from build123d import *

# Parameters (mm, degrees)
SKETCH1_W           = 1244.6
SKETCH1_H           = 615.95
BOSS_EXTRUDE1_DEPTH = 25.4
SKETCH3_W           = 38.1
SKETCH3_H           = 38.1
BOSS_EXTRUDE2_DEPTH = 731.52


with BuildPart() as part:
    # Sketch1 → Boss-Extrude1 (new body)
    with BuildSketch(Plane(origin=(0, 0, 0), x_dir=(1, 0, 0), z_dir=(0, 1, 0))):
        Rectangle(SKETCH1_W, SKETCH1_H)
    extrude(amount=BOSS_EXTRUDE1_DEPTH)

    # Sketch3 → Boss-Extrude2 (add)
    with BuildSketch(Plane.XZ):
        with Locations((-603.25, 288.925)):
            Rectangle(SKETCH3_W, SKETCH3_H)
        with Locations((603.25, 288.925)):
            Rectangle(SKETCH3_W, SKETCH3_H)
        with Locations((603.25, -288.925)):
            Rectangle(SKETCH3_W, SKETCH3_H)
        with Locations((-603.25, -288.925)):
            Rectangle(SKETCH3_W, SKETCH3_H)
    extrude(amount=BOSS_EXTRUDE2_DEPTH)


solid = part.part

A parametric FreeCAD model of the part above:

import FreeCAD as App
import Part
import Sketcher

V = App.Vector
Q = App.Units.Quantity

doc = App.newDocument("Part")
body = doc.addObject("PartDesign::Body", "Body")

sketch1 = body.newObject("Sketcher::SketchObject", "Sketch")
sketch1.AttachmentSupport = (doc.getObject("XZ_Plane"), [""])
sketch1.MapMode = "FlatFace"
sketch1.addGeometry(Part.LineSegment(V(-622.3, -307.975, 0), V(-622.3, 307.975, 0)), False)
sketch1.addGeometry(Part.LineSegment(V(-622.3, 307.975, 0), V(622.3, 307.975, 0)), False)
sketch1.addGeometry(Part.LineSegment(V(622.3, 307.975, 0), V(622.3, -307.975, 0)), False)
sketch1.addGeometry(Part.LineSegment(V(622.3, -307.975, 0), V(-622.3, -307.975, 0)), False)
sketch1.addConstraint(Sketcher.Constraint("Coincident", 0, 2, 1, 1))
sketch1.addConstraint(Sketcher.Constraint("Coincident", 1, 2, 2, 1))
sketch1.addConstraint(Sketcher.Constraint("Coincident", 2, 2, 3, 1))
sketch1.addConstraint(Sketcher.Constraint("Coincident", 3, 2, 0, 1))
sketch1.addConstraint(Sketcher.Constraint("Vertical", 0))
sketch1.addConstraint(Sketcher.Constraint("Horizontal", 1))
sketch1.addConstraint(Sketcher.Constraint("Vertical", 2))
sketch1.addConstraint(Sketcher.Constraint("Horizontal", 3))
sketch1.addConstraint(Sketcher.Constraint("Symmetric", 0, 2, 2, 2, -1, 1))
sketch1.addConstraint(Sketcher.Constraint("DistanceX", 1, 1, 1, 2, Q("49 in")))
sketch1.addConstraint(Sketcher.Constraint("DistanceY", 0, 1, 0, 2, Q("24.25 in")))
pad1 = body.newObject("PartDesign::Pad", "Pad")
pad1.Profile = sketch1
pad1.Length = Q("1 in")
pad1.Reversed = True

sketch2 = body.newObject("Sketcher::SketchObject", "Sketch001")
sketch2.AttachmentSupport = (doc.getObject("XZ_Plane"), [""])
sketch2.MapMode = "FlatFace"
sketch2.addGeometry(Part.LineSegment(V(-622.3, 307.975, 0), V(-622.3, 269.875, 0)), False)
sketch2.addGeometry(Part.LineSegment(V(-622.3, 269.875, 0), V(-584.2, 269.875, 0)), False)
sketch2.addGeometry(Part.LineSegment(V(-584.2, 269.875, 0), V(-584.2, 307.975, 0)), False)
sketch2.addGeometry(Part.LineSegment(V(-584.2, 307.975, 0), V(-622.3, 307.975, 0)), False)
sketch2.addGeometry(Part.LineSegment(V(584.2, 307.975, 0), V(584.2, 269.875, 0)), False)
sketch2.addGeometry(Part.LineSegment(V(584.2, 269.875, 0), V(622.3, 269.875, 0)), False)
sketch2.addGeometry(Part.LineSegment(V(622.3, 269.875, 0), V(622.3, 307.975, 0)), False)
sketch2.addGeometry(Part.LineSegment(V(622.3, 307.975, 0), V(584.2, 307.975, 0)), False)
sketch2.addGeometry(Part.LineSegment(V(584.2, -269.875, 0), V(584.2, -307.975, 0)), False)
sketch2.addGeometry(Part.LineSegment(V(584.2, -307.975, 0), V(622.3, -307.975, 0)), False)
sketch2.addGeometry(Part.LineSegment(V(622.3, -307.975, 0), V(622.3, -269.875, 0)), False)
sketch2.addGeometry(Part.LineSegment(V(622.3, -269.875, 0), V(584.2, -269.875, 0)), False)
sketch2.addGeometry(Part.LineSegment(V(-622.3, -269.875, 0), V(-622.3, -307.975, 0)), False)
sketch2.addGeometry(Part.LineSegment(V(-622.3, -307.975, 0), V(-584.2, -307.975, 0)), False)
sketch2.addGeometry(Part.LineSegment(V(-584.2, -307.975, 0), V(-584.2, -269.875, 0)), False)
sketch2.addGeometry(Part.LineSegment(V(-584.2, -269.875, 0), V(-622.3, -269.875, 0)), False)
sketch2.addConstraint(Sketcher.Constraint("Coincident", 0, 2, 1, 1))
sketch2.addConstraint(Sketcher.Constraint("Coincident", 1, 2, 2, 1))
sketch2.addConstraint(Sketcher.Constraint("Coincident", 2, 2, 3, 1))
sketch2.addConstraint(Sketcher.Constraint("Coincident", 3, 2, 0, 1))
sketch2.addConstraint(Sketcher.Constraint("Coincident", 4, 2, 5, 1))
sketch2.addConstraint(Sketcher.Constraint("Coincident", 5, 2, 6, 1))
sketch2.addConstraint(Sketcher.Constraint("Coincident", 6, 2, 7, 1))
sketch2.addConstraint(Sketcher.Constraint("Coincident", 7, 2, 4, 1))
sketch2.addConstraint(Sketcher.Constraint("Coincident", 8, 2, 9, 1))
sketch2.addConstraint(Sketcher.Constraint("Coincident", 9, 2, 10, 1))
sketch2.addConstraint(Sketcher.Constraint("Coincident", 10, 2, 11, 1))
sketch2.addConstraint(Sketcher.Constraint("Coincident", 11, 2, 8, 1))
sketch2.addConstraint(Sketcher.Constraint("Coincident", 12, 2, 13, 1))
sketch2.addConstraint(Sketcher.Constraint("Coincident", 13, 2, 14, 1))
sketch2.addConstraint(Sketcher.Constraint("Coincident", 14, 2, 15, 1))
sketch2.addConstraint(Sketcher.Constraint("Coincident", 15, 2, 12, 1))
sketch2.addConstraint(Sketcher.Constraint("Vertical", 0))
sketch2.addConstraint(Sketcher.Constraint("Horizontal", 1))
sketch2.addConstraint(Sketcher.Constraint("Vertical", 2))
sketch2.addConstraint(Sketcher.Constraint("Horizontal", 3))
sketch2.addConstraint(Sketcher.Constraint("Vertical", 4))
sketch2.addConstraint(Sketcher.Constraint("Horizontal", 5))
sketch2.addConstraint(Sketcher.Constraint("Vertical", 6))
sketch2.addConstraint(Sketcher.Constraint("Horizontal", 7))
sketch2.addConstraint(Sketcher.Constraint("Vertical", 8))
sketch2.addConstraint(Sketcher.Constraint("Horizontal", 9))
sketch2.addConstraint(Sketcher.Constraint("Vertical", 10))
sketch2.addConstraint(Sketcher.Constraint("Horizontal", 11))
sketch2.addConstraint(Sketcher.Constraint("Vertical", 12))
sketch2.addConstraint(Sketcher.Constraint("Horizontal", 13))
sketch2.addConstraint(Sketcher.Constraint("Vertical", 14))
sketch2.addConstraint(Sketcher.Constraint("Horizontal", 15))
sketch2.addConstraint(Sketcher.Constraint("Symmetric", 2, 2, 8, 2, -1, 1))
sketch2.addConstraint(Sketcher.Constraint("Symmetric", 0, 2, 10, 2, -1, 1))
sketch2.addConstraint(Sketcher.Constraint("Symmetric", 6, 2, 12, 2, -1, 1))
sketch2.addConstraint(Sketcher.Constraint("Symmetric", 4, 2, 14, 2, -1, 1))
sketch2.addConstraint(Sketcher.Constraint("Symmetric", 1, 2, 4, 2, -2))
sketch2.addConstraint(Sketcher.Constraint("Symmetric", 3, 2, 6, 2, -2))
sketch2.addConstraint(Sketcher.Constraint("Equal", 15, 0))
sketch2.addConstraint(Sketcher.Constraint("DistanceX", 1, 1, 1, 2, Q("1.5 in")))
sketch2.addConstraint(Sketcher.Constraint("DistanceX", 1, 2, -1, 1, Q("23 in")))
sketch2.addConstraint(Sketcher.Constraint("DistanceY", 8, 2, 4, 2, Q("22.75 in")))
pad2 = body.newObject("PartDesign::Pad", "Pad001")
pad2.Profile = sketch2
pad2.Length = Q("28.8 in")

doc.recompute()
